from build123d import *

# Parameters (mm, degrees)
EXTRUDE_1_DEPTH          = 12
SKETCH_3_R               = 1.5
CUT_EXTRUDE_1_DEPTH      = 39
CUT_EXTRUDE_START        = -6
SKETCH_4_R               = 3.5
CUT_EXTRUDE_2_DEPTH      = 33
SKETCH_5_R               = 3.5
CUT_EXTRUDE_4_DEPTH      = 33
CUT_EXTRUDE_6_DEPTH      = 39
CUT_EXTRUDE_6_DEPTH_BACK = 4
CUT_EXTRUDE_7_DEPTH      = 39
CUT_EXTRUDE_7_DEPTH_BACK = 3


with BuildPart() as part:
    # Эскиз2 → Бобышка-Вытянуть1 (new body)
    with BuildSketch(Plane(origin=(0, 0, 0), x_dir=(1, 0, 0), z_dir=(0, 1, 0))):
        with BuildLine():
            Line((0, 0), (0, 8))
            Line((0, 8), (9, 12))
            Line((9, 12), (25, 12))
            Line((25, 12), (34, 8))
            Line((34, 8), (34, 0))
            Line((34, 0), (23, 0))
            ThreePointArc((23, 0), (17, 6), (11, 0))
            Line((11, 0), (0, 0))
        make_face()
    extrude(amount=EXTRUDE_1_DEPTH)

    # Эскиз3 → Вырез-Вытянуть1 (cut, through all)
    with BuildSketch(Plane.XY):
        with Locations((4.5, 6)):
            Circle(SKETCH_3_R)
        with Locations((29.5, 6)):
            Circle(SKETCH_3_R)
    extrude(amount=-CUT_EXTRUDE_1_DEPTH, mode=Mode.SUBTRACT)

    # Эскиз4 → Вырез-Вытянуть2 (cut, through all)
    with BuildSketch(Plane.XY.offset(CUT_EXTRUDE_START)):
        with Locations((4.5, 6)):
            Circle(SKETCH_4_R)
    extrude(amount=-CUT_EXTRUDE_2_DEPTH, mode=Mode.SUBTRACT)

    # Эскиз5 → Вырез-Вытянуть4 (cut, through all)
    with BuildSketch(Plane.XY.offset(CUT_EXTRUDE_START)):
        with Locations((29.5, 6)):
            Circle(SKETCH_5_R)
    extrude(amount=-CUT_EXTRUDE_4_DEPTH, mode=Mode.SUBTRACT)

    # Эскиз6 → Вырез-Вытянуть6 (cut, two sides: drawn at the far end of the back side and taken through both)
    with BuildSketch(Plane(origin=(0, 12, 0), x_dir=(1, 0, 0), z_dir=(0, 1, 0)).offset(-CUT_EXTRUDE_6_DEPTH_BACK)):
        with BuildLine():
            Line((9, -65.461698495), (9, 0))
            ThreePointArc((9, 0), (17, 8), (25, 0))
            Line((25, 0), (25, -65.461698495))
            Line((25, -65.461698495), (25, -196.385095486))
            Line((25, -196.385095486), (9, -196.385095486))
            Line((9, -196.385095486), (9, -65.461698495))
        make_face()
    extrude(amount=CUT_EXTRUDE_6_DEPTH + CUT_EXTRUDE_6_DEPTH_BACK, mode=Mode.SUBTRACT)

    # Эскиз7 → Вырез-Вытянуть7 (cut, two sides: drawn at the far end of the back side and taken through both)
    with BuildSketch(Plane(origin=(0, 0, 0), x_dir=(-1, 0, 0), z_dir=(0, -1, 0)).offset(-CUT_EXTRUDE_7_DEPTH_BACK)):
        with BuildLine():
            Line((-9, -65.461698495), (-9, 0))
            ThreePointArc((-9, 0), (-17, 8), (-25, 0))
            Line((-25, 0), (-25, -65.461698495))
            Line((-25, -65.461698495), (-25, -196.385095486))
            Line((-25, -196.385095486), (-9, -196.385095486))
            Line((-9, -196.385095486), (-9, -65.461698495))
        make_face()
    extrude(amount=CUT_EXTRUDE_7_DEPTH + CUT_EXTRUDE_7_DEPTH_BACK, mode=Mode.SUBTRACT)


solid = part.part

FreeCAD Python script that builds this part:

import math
import FreeCAD as App
import Part
import Sketcher

V = App.Vector
Q = App.Units.Quantity

doc = App.newDocument("Part")
params = doc.addObject("Spreadsheet::Sheet", "Params")
for row, (alias, value) in enumerate([
    ("sketch1_radius", "6 mm"),
    ("sketch1_width", "11 mm"),
    ("sketch1_width2", "16 mm"),
    ("sketch1_height", "8 mm"),
    ("pad1_length", "12 mm"),
    ("sketch2_diameter", "3 mm"),
    ("sketch3_diameter", "7 mm"),
    ("sketch4_diameter", "7 mm"),
    ("sketch5_radius", "8 mm"),
    ("pocket4_length", "39 mm"),
    ("pocket4_length2", "4 mm"),
    ("sketch6_radius", "8 mm"),
    ("pocket5_length", "39 mm"),
    ("pocket5_length2", "3 mm"),
], start=1):
    params.set(f"A{row}", alias)
    params.set(f"B{row}", "=" + value)
    params.setAlias(f"B{row}", alias)

body = doc.addObject("PartDesign::Body", "Body")

sketch1 = doc.addObject("Sketcher::SketchObject", "Sketch")
body.addObject(sketch1)
sketch1.AttachmentSupport = (doc.XZ_Plane, [""])
sketch1.MapMode = "FlatFace"
sketch1.addGeometry([
    Part.LineSegment(V(0, -8, 0), V(0, 0, 0)),
    Part.LineSegment(V(0, 0, 0), V(11, 0, 0)),
    Part.ArcOfCircle(Part.Circle(V(17, 0, 0), V(0, 0, 1), 6), math.radians(180), math.radians(360)),
    Part.LineSegment(V(23, 0, 0), V(34, 0, 0)),
    Part.LineSegment(V(34, 0, 0), V(34, -8, 0)),
    Part.LineSegment(V(34, -8, 0), V(25, -12, 0)),
    Part.LineSegment(V(25, -12, 0), V(9, -12, 0)),
    Part.LineSegment(V(9, -12, 0), V(0, -8, 0)),
], False)
sketch1.addConstraint([
    Sketcher.Constraint("Coincident", 0, 2, 1, 1),
    Sketcher.Constraint("Coincident", 1, 2, 2, 1),
    Sketcher.Constraint("Coincident", 2, 2, 3, 1),
    Sketcher.Constraint("Coincident", 3, 2, 4, 1),
    Sketcher.Constraint("Coincident", 4, 2, 5, 1),
    Sketcher.Constraint("Coincident", 5, 2, 6, 1),
    Sketcher.Constraint("Coincident", 6, 2, 7, 1),
    Sketcher.Constraint("Coincident", 7, 2, 0, 1),
    Sketcher.Constraint("Vertical", 0),
    Sketcher.Constraint("Horizontal", 1),
    Sketcher.Constraint("Horizontal", 3),
    Sketcher.Constraint("Vertical", 4),
    Sketcher.Constraint("Horizontal", 6),
    Sketcher.Constraint("Coincident", 0, 2, -1, 1),
    Sketcher.Constraint("PointOnObject", 2, 3, -1),
    Sketcher.Constraint("PointOnObject", 2, 2, -1),
    Sketcher.Constraint("Horizontal", 4, 2, 7, 2),
    Sketcher.Constraint("Equal", 1, 3),
    Sketcher.Constraint("Equal", 5, 7),
    Sketcher.Constraint("Radius", 2, Q("6 mm")),
    Sketcher.Constraint("DistanceX", 1, 1, 1, 2, Q("11 mm")),
    Sketcher.Constraint("DistanceX", 6, 2, 6, 1, Q("16 mm")),
    Sketcher.Constraint("DistanceY", 0, 1, 0, 2, Q("8 mm")),
    Sketcher.Constraint("DistanceY", 5, 2, -1, 1, Q("12 mm")),
])
sketch1.setExpression("Constraints[19]", "Params.sketch1_radius")
sketch1.setExpression("Constraints[20]", "Params.sketch1_width")
sketch1.setExpression("Constraints[21]", "Params.sketch1_width2")
sketch1.setExpression("Constraints[22]", "Params.sketch1_height")
pad1 = doc.addObject("PartDesign::Pad", "Pad")
body.addObject(pad1)
pad1.Profile = sketch1
pad1.setExpression("Length", "Params.pad1_length")
pad1.Reversed = True

sketch2 = doc.addObject("Sketcher::SketchObject", "Sketch001")
body.addObject(sketch2)
sketch2.AttachmentSupport = (doc.XY_Plane, [""])
sketch2.MapMode = "FlatFace"
sketch2.addGeometry([
    Part.Circle(V(4.5, 6, 0), V(0, 0, 1), 1.5),
    Part.Circle(V(29.5, 6, 0), V(0, 0, 1), 1.5),
], False)
sketch2.addConstraint([
    Sketcher.Constraint("Equal", 0, 1),
    Sketcher.Constraint("Horizontal", 0, 3, 1, 3),
    Sketcher.Constraint("Diameter", 0, Q("3 mm")),
    Sketcher.Constraint("DistanceY", -1, 1, 0, 3, Q("6 mm")),
    Sketcher.Constraint("DistanceX", 0, 3, 1, 3, Q("25 mm")),
    Sketcher.Constraint("DistanceX", -1, 1, 0, 3, Q("4.5 mm")),
])
sketch2.setExpression("Constraints[2]", "Params.sketch2_diameter")
pocket1 = doc.addObject("PartDesign::Pocket", "Pocket")
body.addObject(pocket1)
pocket1.Profile = sketch2
pocket1.Type = "ThroughAll"

sketch3 = doc.addObject("Sketcher::SketchObject", "Sketch002")
body.addObject(sketch3)
sketch3.AttachmentSupport = (doc.XY_Plane, [""])
sketch3.MapMode = "FlatFace"
sketch3.AttachmentOffset = App.Placement(V(0, 0, -6), App.Rotation())
sketch3.addGeometry(Part.Circle(V(4.5, 6, 0), V(0, 0, 1), 3.5), False)
sketch3.addConstraint([
    Sketcher.Constraint("Diameter", 0, Q("7 mm")),
    Sketcher.Constraint("DistanceY", -1, 1, 0, 3, Q("6 mm")),
    Sketcher.Constraint("DistanceX", -1, 1, 0, 3, Q("4.5 mm")),
])
sketch3.setExpression("Constraints[0]", "Params.sketch3_diameter")
pocket2 = doc.addObject("PartDesign::Pocket", "Pocket001")
body.addObject(pocket2)
pocket2.Profile = sketch3
pocket2.Type = "ThroughAll"

sketch4 = doc.addObject("Sketcher::SketchObject", "Sketch003")
body.addObject(sketch4)
sketch4.AttachmentSupport = (doc.XY_Plane, [""])
sketch4.MapMode = "FlatFace"
sketch4.AttachmentOffset = App.Placement(V(0, 0, -6), App.Rotation())
sketch4.addGeometry(Part.Circle(V(29.5, 6, 0), V(0, 0, 1), 3.5), False)
sketch4.addConstraint([
    Sketcher.Constraint("Diameter", 0, Q("7 mm")),
    Sketcher.Constraint("DistanceY", -1, 1, 0, 3, Q("6 mm")),
    Sketcher.Constraint("DistanceX", -1, 1, 0, 3, Q("29.5 mm")),
])
sketch4.setExpression("Constraints[0]", "Params.sketch4_diameter")
pocket3 = doc.addObject("PartDesign::Pocket", "Pocket002")
body.addObject(pocket3)
pocket3.Profile = sketch4
pocket3.Type = "ThroughAll"

sketch5 = doc.addObject("Sketcher::SketchObject", "Sketch004")
body.addObject(sketch5)
sketch5.AttachmentSupport = (doc.XZ_Plane, [""])
sketch5.MapMode = "FlatFace"
sketch5.AttachmentOffset = App.Placement(V(0, 0, -12), App.Rotation())
sketch5.addGeometry([
    Part.ArcOfCircle(Part.Circle(V(17, 0, 0), V(0, 0, 1), 8), math.radians(180), math.radians(360)),
    Part.LineSegment(V(9, 0, 0), V(9, 196, 0)),
    Part.LineSegment(V(9, 196, 0), V(25, 196, 0)),
    Part.LineSegment(V(25, 196, 0), V(25, 0, 0)),
], False)
sketch5.addConstraint([
    Sketcher.Constraint("Tangent", 0, 1, 1, 1),
    Sketcher.Constraint("Coincident", 1, 2, 2, 1),
    Sketcher.Constraint("Coincident", 2, 2, 3, 1),
    Sketcher.Constraint("Tangent", 3, 2, 0, 2),
    Sketcher.Constraint("Vertical", 1),
    Sketcher.Constraint("Horizontal", 2),
    Sketcher.Constraint("Vertical", 3),
    Sketcher.Constraint("PointOnObject", 0, 3, -1),
    Sketcher.Constraint("Radius", 0, Q("8 mm")),
    Sketcher.Constraint("DistanceX", -1, 1, 0, 3, Q("17 mm")),
    Sketcher.Constraint("DistanceY", 1, 1, 1, 2, Q("196.385095 mm")),
])
sketch5.setExpression("Constraints[8]", "Params.sketch5_radius")
pocket4 = doc.addObject("PartDesign::Pocket", "Pocket003")
body.addObject(pocket4)
pocket4.Profile = sketch5
pocket4.Type = "TwoLengths"
pocket4.setExpression("Length", "Params.pocket4_length")
pocket4.setExpression("Length2", "Params.pocket4_length2")

sketch6 = doc.addObject("Sketcher::SketchObject", "Sketch005")
body.addObject(sketch6)
sketch6.AttachmentSupport = (doc.XZ_Plane, [""])
sketch6.MapMode = "FlatFace"
sketch6.addGeometry([
    Part.ArcOfCircle(Part.Circle(V(17, 0, 0), V(0, 0, 1), 8), math.radians(180), math.radians(360)),
    Part.LineSegment(V(25, 0, 0), V(25, 196, 0)),
    Part.LineSegment(V(25, 196, 0), V(9, 196, 0)),
    Part.LineSegment(V(9, 196, 0), V(9, 0, 0)),
], False)
sketch6.addConstraint([
    Sketcher.Constraint("Tangent", 0, 2, 1, 1),
    Sketcher.Constraint("Coincident", 1, 2, 2, 1),
    Sketcher.Constraint("Coincident", 2, 2, 3, 1),
    Sketcher.Constraint("Tangent", 3, 2, 0, 1),
    Sketcher.Constraint("Vertical", 1),
    Sketcher.Constraint("Horizontal", 2),
    Sketcher.Constraint("Vertical", 3),
    Sketcher.Constraint("PointOnObject", 0, 3, -1),
    Sketcher.Constraint("Radius", 0, Q("8 mm")),
    Sketcher.Constraint("DistanceX", -1, 1, 0, 3, Q("17 mm")),
    Sketcher.Constraint("DistanceY", 1, 1, 1, 2, Q("196.385095 mm")),
])
sketch6.setExpression("Constraints[8]", "Params.sketch6_radius")
pocket5 = doc.addObject("PartDesign::Pocket", "Pocket004")
body.addObject(pocket5)
pocket5.Profile = sketch6
pocket5.Type = "TwoLengths"
pocket5.setExpression("Length", "Params.pocket5_length")
pocket5.setExpression("Length2", "Params.pocket5_length2")
pocket5.Reversed = True

doc.recompute()
